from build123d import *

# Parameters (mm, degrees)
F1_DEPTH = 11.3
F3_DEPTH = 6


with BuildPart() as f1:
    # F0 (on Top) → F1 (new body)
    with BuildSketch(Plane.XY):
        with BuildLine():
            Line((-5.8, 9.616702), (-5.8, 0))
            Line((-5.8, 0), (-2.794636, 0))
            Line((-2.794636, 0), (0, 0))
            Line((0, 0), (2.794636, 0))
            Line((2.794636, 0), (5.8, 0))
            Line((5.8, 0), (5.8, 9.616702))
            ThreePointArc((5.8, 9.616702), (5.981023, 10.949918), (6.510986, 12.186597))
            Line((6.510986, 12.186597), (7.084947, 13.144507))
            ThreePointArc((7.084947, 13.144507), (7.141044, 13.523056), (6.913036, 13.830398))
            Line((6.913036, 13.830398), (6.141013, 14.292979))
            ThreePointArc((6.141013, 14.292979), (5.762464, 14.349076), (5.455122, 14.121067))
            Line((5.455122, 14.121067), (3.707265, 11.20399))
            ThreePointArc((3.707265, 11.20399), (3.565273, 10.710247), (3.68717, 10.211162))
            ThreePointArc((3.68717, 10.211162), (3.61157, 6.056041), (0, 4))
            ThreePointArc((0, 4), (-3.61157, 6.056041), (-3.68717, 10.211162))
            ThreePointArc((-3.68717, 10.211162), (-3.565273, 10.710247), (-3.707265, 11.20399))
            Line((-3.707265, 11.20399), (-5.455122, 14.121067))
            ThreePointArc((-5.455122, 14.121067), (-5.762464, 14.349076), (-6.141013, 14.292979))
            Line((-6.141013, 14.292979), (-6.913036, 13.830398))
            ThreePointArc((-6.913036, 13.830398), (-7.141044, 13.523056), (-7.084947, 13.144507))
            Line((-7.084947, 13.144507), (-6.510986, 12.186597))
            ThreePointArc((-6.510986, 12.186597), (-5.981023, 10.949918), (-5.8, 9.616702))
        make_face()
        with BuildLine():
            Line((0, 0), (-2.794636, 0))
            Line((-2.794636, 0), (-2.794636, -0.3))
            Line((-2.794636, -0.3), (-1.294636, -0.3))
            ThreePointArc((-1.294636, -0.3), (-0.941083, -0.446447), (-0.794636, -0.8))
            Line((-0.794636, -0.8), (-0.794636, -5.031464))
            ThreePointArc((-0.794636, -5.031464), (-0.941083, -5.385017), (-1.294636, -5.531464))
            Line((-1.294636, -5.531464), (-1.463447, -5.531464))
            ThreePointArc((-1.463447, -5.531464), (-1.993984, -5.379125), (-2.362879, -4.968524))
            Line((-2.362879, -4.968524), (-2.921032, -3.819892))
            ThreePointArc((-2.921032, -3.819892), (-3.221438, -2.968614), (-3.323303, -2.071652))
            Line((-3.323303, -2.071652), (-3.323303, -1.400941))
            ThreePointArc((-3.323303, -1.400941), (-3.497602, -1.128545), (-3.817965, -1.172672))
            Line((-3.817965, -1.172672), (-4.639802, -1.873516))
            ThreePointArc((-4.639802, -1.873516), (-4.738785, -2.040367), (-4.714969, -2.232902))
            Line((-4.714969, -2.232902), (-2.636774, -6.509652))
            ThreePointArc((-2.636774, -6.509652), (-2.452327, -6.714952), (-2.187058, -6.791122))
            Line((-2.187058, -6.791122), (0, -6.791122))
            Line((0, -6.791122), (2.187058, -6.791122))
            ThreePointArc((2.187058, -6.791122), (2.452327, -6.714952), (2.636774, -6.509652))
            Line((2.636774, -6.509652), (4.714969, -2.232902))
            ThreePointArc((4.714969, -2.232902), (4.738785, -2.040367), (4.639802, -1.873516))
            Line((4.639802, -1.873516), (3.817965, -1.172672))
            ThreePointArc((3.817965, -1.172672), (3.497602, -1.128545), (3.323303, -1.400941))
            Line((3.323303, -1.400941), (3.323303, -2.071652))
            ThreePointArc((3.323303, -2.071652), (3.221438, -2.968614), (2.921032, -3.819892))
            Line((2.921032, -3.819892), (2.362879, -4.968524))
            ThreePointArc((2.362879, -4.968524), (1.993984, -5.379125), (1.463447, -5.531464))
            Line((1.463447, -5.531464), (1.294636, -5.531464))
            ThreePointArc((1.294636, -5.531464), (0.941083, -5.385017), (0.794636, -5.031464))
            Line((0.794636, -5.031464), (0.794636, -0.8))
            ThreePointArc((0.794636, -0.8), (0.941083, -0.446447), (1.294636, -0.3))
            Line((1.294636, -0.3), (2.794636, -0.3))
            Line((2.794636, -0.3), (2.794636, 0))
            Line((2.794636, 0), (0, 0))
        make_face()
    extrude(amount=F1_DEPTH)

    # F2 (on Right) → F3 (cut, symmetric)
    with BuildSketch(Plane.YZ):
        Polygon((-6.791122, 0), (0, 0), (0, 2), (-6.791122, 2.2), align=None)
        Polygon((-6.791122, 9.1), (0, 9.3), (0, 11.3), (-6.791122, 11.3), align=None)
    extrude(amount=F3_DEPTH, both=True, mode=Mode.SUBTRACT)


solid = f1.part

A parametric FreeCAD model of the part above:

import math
import FreeCAD as App
import Part
import Sketcher

V = App.Vector
Q = App.Units.Quantity


def add_polygon(sketch, points):
    """Adds a closed chain of lines whose ends are joined by coincident constraints."""
    first, n = sketch.GeometryCount, len(points)
    for a, b in zip(points, points[1:] + points[:1]):
        sketch.addGeometry(Part.LineSegment(App.Vector(*a, 0), App.Vector(*b, 0)), False)
    for i in range(n):
        sketch.addConstraint(Sketcher.Constraint("Coincident", first + i, 2, first + (i + 1) % n, 1))

doc = App.newDocument("Part")
params = doc.addObject("Spreadsheet::Sheet", "Params")
for row, (alias, value) in enumerate([
    ("sketch1_radius", "0.500001 mm"),
    ("sketch1_radius2", "0.3 mm"),
    ("sketch1_radius3", "4.2 mm"),
    ("sketch1_width", "1.5 mm"),
    ("sketch1_height", "0.3 mm"),
    ("pad1_length", "11.3 mm"),
    ("sketch2_height", "2 mm"),
    ("sketch2_height2", "2.2 mm"),
    ("pocket1_length", "12 mm"),
], start=1):
    params.set(f"A{row}", alias)
    params.set(f"B{row}", "=" + value)
    params.setAlias(f"B{row}", alias)

body = doc.addObject("PartDesign::Body", "Body")

sketch1 = body.newObject("Sketcher::SketchObject", "Sketch")
sketch1.AttachmentSupport = (doc.getObject("XY_Plane"), [""])
sketch1.MapMode = "FlatFace"
sketch1.addGeometry(Part.LineSegment(V(-5.8, 9.62, 0), V(-5.8, 0, 0)), False)
sketch1.addGeometry(Part.LineSegment(V(-5.8, 0, 0), V(-2.79, 0, 0)), False)
sketch1.addGeometry(Part.LineSegment(V(-2.79, 0, 0), V(-2.79, -0.3, 0)), False)
sketch1.addGeometry(Part.LineSegment(V(-2.79, -0.3, 0), V(-1.29, -0.3, 0)), False)
sketch1.addGeometry(Part.ArcOfCircle(Part.Circle(V(-1.29, -0.8, 0), V(0, 0, 1), 0.5), math.radians(0), math.radians(90)), False)
sketch1.addGeometry(Part.LineSegment(V(-0.79, -0.8, 0), V(-0.79, -5.03, 0)), False)
sketch1.addGeometry(Part.ArcOfCircle(Part.Circle(V(-1.29, -5.03, 0), V(0, 0, 1), 0.5), math.radians(-90), math.radians(0)), False)
sketch1.addGeometry(Part.LineSegment(V(-1.29, -5.53, 0), V(-1.46, -5.53, 0)), False)
sketch1.addGeometry(Part.ArcOfCircle(Part.Circle(V(-1.46, -4.53, 0), V(0, 0, 1), 1), math.radians(-154), math.radians(-90)), False)
sketch1.addGeometry(Part.LineSegment(V(-2.36, -4.97, 0), V(-2.92, -3.82, 0)), False)
sketch1.addGeometry(Part.ArcOfCircle(Part.Circle(V(0.68, -2.07, 0), V(0, 0, 1), 4), math.radians(-180), math.radians(-154)), False)
sketch1.addGeometry(Part.LineSegment(V(-3.32, -2.07, 0), V(-3.32, -1.4, 0)), False)
sketch1.addGeometry(Part.ArcOfCircle(Part.Circle(V(-3.62, -1.4, 0), V(0, 0, 1), 0.3), math.radians(0), math.radians(130)), False)
sketch1.addGeometry(Part.LineSegment(V(-3.82, -1.17, 0), V(-4.64, -1.87, 0)), False)
sketch1.addGeometry(Part.ArcOfCircle(Part.Circle(V(-4.45, -2.1, 0), V(0, 0, 1), 0.3), math.radians(130), math.radians(206)), False)
sketch1.addGeometry(Part.LineSegment(V(-4.71, -2.23, 0), V(-2.64, -6.51, 0)), False)
sketch1.addGeometry(Part.ArcOfCircle(Part.Circle(V(-2.19, -6.29, 0), V(0, 0, 1), 0.5), math.radians(-154), math.radians(-90)), False)
sketch1.addGeometry(Part.LineSegment(V(-2.19, -6.79, 0), V(2.19, -6.79, 0)), False)
sketch1.addGeometry(Part.ArcOfCircle(Part.Circle(V(2.19, -6.29, 0), V(0, 0, 1), 0.5), math.radians(-90), math.radians(-26)), False)
sketch1.addGeometry(Part.LineSegment(V(2.64, -6.51, 0), V(4.71, -2.23, 0)), False)
sketch1.addGeometry(Part.ArcOfCircle(Part.Circle(V(4.45, -2.1, 0), V(0, 0, 1), 0.3), math.radians(-26), math.radians(50)), False)
sketch1.addGeometry(Part.LineSegment(V(4.64, -1.87, 0), V(3.82, -1.17, 0)), False)
sketch1.addGeometry(Part.ArcOfCircle(Part.Circle(V(3.62, -1.4, 0), V(0, 0, 1), 0.3), math.radians(50), math.radians(180)), False)
sketch1.addGeometry(Part.LineSegment(V(3.32, -1.4, 0), V(3.32, -2.07, 0)), False)
sketch1.addGeometry(Part.ArcOfCircle(Part.Circle(V(-0.68, -2.07, 0), V(0, 0, 1), 4), math.radians(-26), math.radians(0)), False)
sketch1.addGeometry(Part.LineSegment(V(2.92, -3.82, 0), V(2.36, -4.97, 0)), False)
sketch1.addGeometry(Part.ArcOfCircle(Part.Circle(V(1.46, -4.53, 0), V(0, 0, 1), 1), math.radians(-90), math.radians(-26)), False)
sketch1.addGeometry(Part.LineSegment(V(1.46, -5.53, 0), V(1.29, -5.53, 0)), False)
sketch1.addGeometry(Part.ArcOfCircle(Part.Circle(V(1.29, -5.03, 0), V(0, 0, 1), 0.5), math.radians(-180), math.radians(-90)), False)
sketch1.addGeometry(Part.LineSegment(V(0.79, -5.03, 0), V(0.79, -0.8, 0)), False)
sketch1.addGeometry(Part.ArcOfCircle(Part.Circle(V(1.29, -0.8, 0), V(0, 0, 1), 0.5), math.radians(90), math.radians(180)), False)
sketch1.addGeometry(Part.LineSegment(V(1.29, -0.3, 0), V(2.79, -0.3, 0)), False)
sketch1.addGeometry(Part.LineSegment(V(2.79, -0.3, 0), V(2.79, 0, 0)), False)
sketch1.addGeometry(Part.LineSegment(V(2.79, 0, 0), V(5.8, 0, 0)), False)
sketch1.addGeometry(Part.LineSegment(V(5.8, 0, 0), V(5.8, 9.62, 0)), False)
sketch1.addGeometry(Part.ArcOfCircle(Part.Circle(V(10.8, 9.62, 0), V(0, 0, 1), 5), math.radians(149), math.radians(180)), False)
sketch1.addGeometry(Part.LineSegment(V(6.51, 12.19, 0), V(7.08, 13.14, 0)), False)
sketch1.addGeometry(Part.ArcOfCircle(Part.Circle(V(6.66, 13.4, 0), V(0, 0, 1), 0.5), math.radians(-31), math.radians(59)), False)
sketch1.addGeometry(Part.LineSegment(V(6.91, 13.83, 0), V(6.14, 14.29, 0)), False)
sketch1.addGeometry(Part.ArcOfCircle(Part.Circle(V(5.88, 13.86, 0), V(0, 0, 1), 0.5), math.radians(59), math.radians(149)), False)
sketch1.addGeometry(Part.LineSegment(V(5.46, 14.12, 0), V(3.71, 11.2, 0)), False)
sketch1.addGeometry(Part.ArcOfCircle(Part.Circle(V(4.57, 10.69, 0), V(0, 0, 1), 1), math.radians(149), math.radians(209)), False)
sketch1.addGeometry(Part.ArcOfCircle(Part.Circle(V(0, 8.2, 0), V(0, 0, 1), 4.2), math.radians(-90), math.radians(29)), False)
sketch1.addGeometry(Part.ArcOfCircle(Part.Circle(V(0, 8.2, 0), V(0, 0, 1), 4.2), math.radians(151), math.radians(270)), False)
sketch1.addGeometry(Part.ArcOfCircle(Part.Circle(V(-4.57, 10.69, 0), V(0, 0, 1), 1), math.radians(-29), math.radians(31)), False)
sketch1.addGeometry(Part.LineSegment(V(-3.71, 11.2, 0), V(-5.46, 14.12, 0)), False)
sketch1.addGeometry(Part.ArcOfCircle(Part.Circle(V(-5.88, 13.86, 0), V(0, 0, 1), 0.5), math.radians(31), math.radians(121)), False)
sketch1.addGeometry(Part.LineSegment(V(-6.14, 14.29, 0), V(-6.91, 13.83, 0)), False)
sketch1.addGeometry(Part.ArcOfCircle(Part.Circle(V(-6.66, 13.4, 0), V(0, 0, 1), 0.5), math.radians(121), math.radians(211)), False)
sketch1.addGeometry(Part.LineSegment(V(-7.08, 13.14, 0), V(-6.51, 12.19, 0)), False)
sketch1.addGeometry(Part.ArcOfCircle(Part.Circle(V(-10.8, 9.62, 0), V(0, 0, 1), 5), math.radians(0), math.radians(31)), False)
sketch1.addConstraint(Sketcher.Constraint("Coincident", 0, 2, 1, 1))
sketch1.addConstraint(Sketcher.Constraint("Coincident", 1, 2, 2, 1))
sketch1.addConstraint(Sketcher.Constraint("Coincident", 2, 2, 3, 1))
sketch1.addConstraint(Sketcher.Constraint("Coincident", 3, 2, 4, 2))
sketch1.addConstraint(Sketcher.Constraint("Coincident", 4, 1, 5, 1))
sketch1.addConstraint(Sketcher.Constraint("Coincident", 5, 2, 6, 2))
sketch1.addConstraint(Sketcher.Constraint("Coincident", 6, 1, 7, 1))
sketch1.addConstraint(Sketcher.Constraint("Coincident", 7, 2, 8, 2))
sketch1.addConstraint(Sketcher.Constraint("Tangent", 8, 1, 9, 1))
sketch1.addConstraint(Sketcher.Constraint("Tangent", 9, 2, 10, 2))
sketch1.addConstraint(Sketcher.Constraint("Tangent", 10, 1, 11, 1))
sketch1.addConstraint(Sketcher.Constraint("Coincident", 11, 2, 12, 1))
sketch1.addConstraint(Sketcher.Constraint("Tangent", 12, 2, 13, 1))
sketch1.addConstraint(Sketcher.Constraint("Coincident", 13, 2, 14, 1))
sketch1.addConstraint(Sketcher.Constraint("Tangent", 14, 2, 15, 1))
sketch1.addConstraint(Sketcher.Constraint("Coincident", 15, 2, 16, 1))
sketch1.addConstraint(Sketcher.Constraint("Coincident", 16, 2, 17, 1))
sketch1.addConstraint(Sketcher.Constraint("Coincident", 17, 2, 18, 1))
sketch1.addConstraint(Sketcher.Constraint("Coincident", 18, 2, 19, 1))
sketch1.addConstraint(Sketcher.Constraint("Tangent", 19, 2, 20, 1))
sketch1.addConstraint(Sketcher.Constraint("Coincident", 20, 2, 21, 1))
sketch1.addConstraint(Sketcher.Constraint("Tangent", 21, 2, 22, 1))
sketch1.addConstraint(Sketcher.Constraint("Coincident", 22, 2, 23, 1))
sketch1.addConstraint(Sketcher.Constraint("Tangent", 23, 2, 24, 2))
sketch1.addConstraint(Sketcher.Constraint("Tangent", 24, 1, 25, 1))
sketch1.addConstraint(Sketcher.Constraint("Tangent", 25, 2, 26, 2))
sketch1.addConstraint(Sketcher.Constraint("Coincident", 26, 1, 27, 1))
sketch1.addConstraint(Sketcher.Constraint("Coincident", 27, 2, 28, 2))
sketch1.addConstraint(Sketcher.Constraint("Coincident", 28, 1, 29, 1))
sketch1.addConstraint(Sketcher.Constraint("Coincident", 29, 2, 30, 2))
sketch1.addConstraint(Sketcher.Constraint("Coincident", 30, 1, 31, 1))
sketch1.addConstraint(Sketcher.Constraint("Coincident", 31, 2, 32, 1))
sketch1.addConstraint(Sketcher.Constraint("Coincident", 32, 2, 33, 1))
sketch1.addConstraint(Sketcher.Constraint("Coincident", 33, 2, 34, 1))
sketch1.addConstraint(Sketcher.Constraint("Tangent", 34, 2, 35, 2))
sketch1.addConstraint(Sketcher.Constraint("Tangent", 35, 1, 36, 1))
sketch1.addConstraint(Sketcher.Constraint("Tangent", 36, 2, 37, 1))
sketch1.addConstraint(Sketcher.Constraint("Coincident", 37, 2, 38, 1))
sketch1.addConstraint(Sketcher.Constraint("Tangent", 38, 2, 39, 1))
sketch1.addConstraint(Sketcher.Constraint("Tangent", 39, 2, 40, 1))
sketch1.addConstraint(Sketcher.Constraint("Coincident", 40, 2, 41, 1))
sketch1.addConstraint(Sketcher.Constraint("Coincident", 41, 2, 42, 2))
sketch1.addConstraint(Sketcher.Constraint("Tangent", 42, 1, 43, 2))
sketch1.addConstraint(Sketcher.Constraint("Coincident", 43, 1, 44, 1))
sketch1.addConstraint(Sketcher.Constraint("Coincident", 44, 2, 45, 1))
sketch1.addConstraint(Sketcher.Constraint("Tangent", 45, 2, 46, 1))
sketch1.addConstraint(Sketcher.Constraint("Tangent", 46, 2, 47, 1))
sketch1.addConstraint(Sketcher.Constraint("Coincident", 47, 2, 48, 1))
sketch1.addConstraint(Sketcher.Constraint("Tangent", 48, 2, 49, 1))
sketch1.addConstraint(Sketcher.Constraint("Tangent", 49, 2, 50, 2))
sketch1.addConstraint(Sketcher.Constraint("Tangent", 50, 1, 0, 1))
sketch1.addConstraint(Sketcher.Constraint("Vertical", 0))
sketch1.addConstraint(Sketcher.Constraint("Horizontal", 1))
sketch1.addConstraint(Sketcher.Constraint("Vertical", 2))
sketch1.addConstraint(Sketcher.Constraint("Horizontal", 3))
sketch1.addConstraint(Sketcher.Constraint("Vertical", 5))
sketch1.addConstraint(Sketcher.Constraint("Horizontal", 7))
sketch1.addConstraint(Sketcher.Constraint("Vertical", 11))
sketch1.addConstraint(Sketcher.Constraint("Horizontal", 17))
sketch1.addConstraint(Sketcher.Constraint("Vertical", 23))
sketch1.addConstraint(Sketcher.Constraint("Horizontal", 27))
sketch1.addConstraint(Sketcher.Constraint("Vertical", 29))
sketch1.addConstraint(Sketcher.Constraint("Horizontal", 31))
sketch1.addConstraint(Sketcher.Constraint("Vertical", 32))
sketch1.addConstraint(Sketcher.Constraint("Horizontal", 33))
sketch1.addConstraint(Sketcher.Constraint("Vertical", 34))
sketch1.addConstraint(Sketcher.Constraint("Equal", 4, 6))
sketch1.addConstraint(Sketcher.Constraint("Equal", 12, 14))
sketch1.addConstraint(Sketcher.Constraint("Equal", 6, 16))
sketch1.addConstraint(Sketcher.Constraint("Equal", 16, 18))
sketch1.addConstraint(Sketcher.Constraint("Equal", 14, 20))
sketch1.addConstraint(Sketcher.Constraint("Equal", 20, 22))
sketch1.addConstraint(Sketcher.Constraint("Equal", 10, 24))
sketch1.addConstraint(Sketcher.Constraint("Equal", 8, 26))
sketch1.addConstraint(Sketcher.Constraint("Equal", 18, 28))
sketch1.addConstraint(Sketcher.Constraint("Equal", 28, 30))
sketch1.addConstraint(Sketcher.Constraint("Equal", 30, 37))
sketch1.addConstraint(Sketcher.Constraint("Equal", 37, 39))
sketch1.addConstraint(Sketcher.Constraint("Equal", 42, 43))
sketch1.addConstraint(Sketcher.Constraint("Equal", 41, 44))
sketch1.addConstraint(Sketcher.Constraint("Equal", 39, 46))
sketch1.addConstraint(Sketcher.Constraint("Equal", 46, 48))
sketch1.addConstraint(Sketcher.Constraint("Equal", 35, 50))
sketch1.addConstraint(Sketcher.Constraint("Symmetric", 1, 2, 32, 2, -1, 1))
sketch1.addConstraint(Sketcher.Constraint("Symmetric", 14, 3, 20, 3, -2))
sketch1.addConstraint(Sketcher.Constraint("Symmetric", 12, 3, 22, 3, -2))
sketch1.addConstraint(Sketcher.Constraint("Symmetric", 8, 3, 26, 3, -2))
sketch1.addConstraint(Sketcher.Constraint("Symmetric", 4, 3, 30, 3, -2))
sketch1.addConstraint(Sketcher.Constraint("Symmetric", 41, 3, 44, 3, -2))
sketch1.addConstraint(Sketcher.Constraint("Symmetric", 39, 3, 46, 3, -2))
sketch1.addConstraint(Sketcher.Constraint("Symmetric", 37, 3, 48, 3, -2))
sketch1.addConstraint(Sketcher.Constraint("Symmetric", 35, 3, 50, 3, -2))
sketch1.addConstraint(Sketcher.Constraint("Symmetric", 15, 2, 18, 2, -2))
sketch1.addConstraint(Sketcher.Constraint("PointOnObject", 0, 2, -1))
sketch1.addConstraint(Sketcher.Constraint("PointOnObject", 42, 1, -2))
sketch1.addConstraint(Sketcher.Constraint("Parallel", 9, 15))
sketch1.addConstraint(Sketcher.Constraint("Parallel", 19, 25))
sketch1.addConstraint(Sketcher.Constraint("Perpendicular", 36, 38))
sketch1.addConstraint(Sketcher.Constraint("Perpendicular", 38, 40))
sketch1.addConstraint(Sketcher.Constraint("Horizontal", 30, 3, 4, 1))
sketch1.addConstraint(Sketcher.Constraint("Horizontal", 28, 3, 5, 2))
sketch1.addConstraint(Sketcher.Constraint("Horizontal", 22, 3, 11, 2))
sketch1.addConstraint(Sketcher.Constraint("Horizontal", 13, 2, 20, 2))
sketch1.addConstraint(Sketcher.Constraint("Horizontal", 11, 2, 22, 2))
sketch1.addConstraint(Sketcher.Constraint("Horizontal", 5, 2, 28, 1))
sketch1.addConstraint(Sketcher.Constraint("Horizontal", 4, 1, 29, 2))
sketch1.addConstraint(Sketcher.Constraint("Horizontal", 41, 2, 43, 1))
sketch1.addConstraint(Sketcher.Constraint("Horizontal", 40, 2, 44, 2))
sketch1.addConstraint(Sketcher.Constraint("Horizontal", 37, 2, 47, 2))
sketch1.addConstraint(Sketcher.Constraint("Vertical", 6, 3, 3, 2))
sketch1.addConstraint(Sketcher.Constraint("Vertical", 3, 2, 6, 1))
sketch1.addConstraint(Sketcher.Constraint("Vertical", 18, 3, 17, 2))
sketch1.addConstraint(Sketcher.Constraint("Vertical", 30, 3, 27, 2))
sketch1.addConstraint(Sketcher.Constraint("Vertical", 27, 2, 30, 1))
sketch1.addConstraint(Sketcher.Constraint("Equal", 7, 27))
sketch1.addConstraint(Sketcher.Constraint("Radius", 4, Q("0.500001 mm")))
sketch1.addConstraint(Sketcher.Constraint("Radius", 12, Q("0.3 mm")))
sketch1.addConstraint(Sketcher.Constraint("Radius", 42, Q("4.2 mm")))
sketch1.addConstraint(Sketcher.Constraint("DistanceX", 3, 1, 3, 2, Q("1.5 mm")))
sketch1.addConstraint(Sketcher.Constraint("DistanceY", 2, 2, 2, 1, Q("0.3 mm")))
sketch1.addConstraint(Sketcher.Constraint("DistanceY", -1, 1, 42, 1, Q("4 mm")))
sketch1.addConstraint(Sketcher.Constraint("Distance", 38, Q("0.9 mm")))
sketch1.addConstraint(Sketcher.Constraint("DistanceX", 0, 2, -1, 1, Q("5.8 mm")))
sketch1.addConstraint(Sketcher.Constraint("Radius", 35, Q("4.999991 mm")))
sketch1.addConstraint(Sketcher.Constraint("Radius", 8, Q("1.000003 mm")))
sketch1.addConstraint(Sketcher.Constraint("Radius", 10, Q("4.000006 mm")))
sketch1.addConstraint(Sketcher.Constraint("Radius", 41, Q("1.000005 mm")))
sketch1.addConstraint(Sketcher.Constraint("Distance", 36, Q("1.116702 mm")))
sketch1.addConstraint(Sketcher.Constraint("DistanceX", 7, 2, 7, 1, Q("0.168811 mm")))
sketch1.addConstraint(Sketcher.Constraint("DistanceY", 11, 1, 11, 2, Q("0.670711 mm")))
sketch1.addConstraint(Sketcher.Constraint("DistanceY", 14, 2, -1, 1, Q("2.232902 mm")))
sketch1.addConstraint(Sketcher.Constraint("DistanceX", -1, 1, 20, 2, Q("4.639802 mm")))
sketch1.addConstraint(Sketcher.Constraint("DistanceY", -1, 1, 37, 2, Q("13.830398 mm")))
sketch1.addConstraint(Sketcher.Constraint("Distance", 13, Q("1.080092 mm")))
sketch1.addConstraint(Sketcher.Constraint("Distance", 40, Q("3.400639 mm")))
sketch1.addConstraint(Sketcher.Constraint("DistanceX", 1, 1, 1, 2, Q("3.005364 mm")))
sketch1.addConstraint(Sketcher.Constraint("DistanceX", 17, 1, 17, 2, Q("4.374116 mm")))
sketch1.addConstraint(Sketcher.Constraint("DistanceY", 0, 2, 0, 1, Q("9.616702 mm")))
sketch1.addConstraint(Sketcher.Constraint("DistanceY", 5, 2, 5, 1, Q("4.231464 mm")))
sketch1.addConstraint(Sketcher.Constraint("DistanceY", 10, 3, -1, 1, Q("2.07165 mm")))
sketch1.addConstraint(Sketcher.Constraint("DistanceX", 14, 3, -1, 1, Q("4.445139 mm")))
sketch1.addConstraint(Sketcher.Constraint("DistanceY", 16, 3, -1, 1, Q("6.29112 mm")))
sketch1.addConstraint(Sketcher.Constraint("DistanceY", -1, 1, 39, 3, Q("13.864078 mm")))
sketch1.addConstraint(Sketcher.Constraint("DistanceX", 8, 1, -1, 1, Q("2.362879 mm")))
sketch1.addConstraint(Sketcher.Constraint("DistanceY", 18, 2, -1, 1, Q("6.509652 mm")))
sketch1.addConstraint(Sketcher.Constraint("DistanceX", -1, 1, 41, 2, Q("3.68717 mm")))
sketch1.setExpression("Constraints[115]", "Params.sketch1_radius")
sketch1.setExpression("Constraints[116]", "Params.sketch1_radius2")
sketch1.setExpression("Constraints[117]", "Params.sketch1_radius3")
sketch1.setExpression("Constraints[118]", "Params.sketch1_width")
sketch1.setExpression("Constraints[119]", "Params.sketch1_height")
pad1 = body.newObject("PartDesign::Pad", "Pad")
pad1.Profile = sketch1
pad1.setExpression("Length", "Params.pad1_length")

sketch2 = body.newObject("Sketcher::SketchObject", "Sketch001")
sketch2.AttachmentSupport = (doc.getObject("YZ_Plane"), [""])
sketch2.MapMode = "FlatFace"
add_polygon(sketch2, [(-6.8, 0), (0, 0), (0, 2), (-6.8, 2.2)])
add_polygon(sketch2, [(-6.8, 9.1), (0, 9.3), (0, 11.3), (-6.8, 11.3)])
sketch2.addConstraint(Sketcher.Constraint("Horizontal", 0))
sketch2.addConstraint(Sketcher.Constraint("Vertical", 1))
sketch2.addConstraint(Sketcher.Constraint("Vertical", 3))
sketch2.addConstraint(Sketcher.Constraint("Vertical", 5))
sketch2.addConstraint(Sketcher.Constraint("Horizontal", 6))
sketch2.addConstraint(Sketcher.Constraint("Vertical", 7))
sketch2.addConstraint(Sketcher.Constraint("Coincident", 0, 2, -1, 1))
sketch2.addConstraint(Sketcher.Constraint("PointOnObject", 4, 2, -2))
sketch2.addConstraint(Sketcher.Constraint("Vertical", 3, 2, 6, 2))
sketch2.addConstraint(Sketcher.Constraint("Equal", 1, 5))
sketch2.addConstraint(Sketcher.Constraint("Equal", 3, 7))
sketch2.addConstraint(Sketcher.Constraint("DistanceY", 1, 1, 1, 2, Q("2 mm")))
sketch2.addConstraint(Sketcher.Constraint("DistanceY", 3, 2, 3, 1, Q("2.2 mm")))
sketch2.addConstraint(Sketcher.Constraint("DistanceY", -1, 1, 4, 2, Q("9.3 mm")))
sketch2.addConstraint(Sketcher.Constraint("DistanceX", 0, 1, 0, 2, Q("6.791122 mm")))
sketch2.setExpression("Constraints[19]", "Params.sketch2_height")
sketch2.setExpression("Constraints[20]", "Params.sketch2_height2")
pocket1 = body.newObject("PartDesign::Pocket", "Pocket")
pocket1.Profile = sketch2
pocket1.setExpression("Length", "Params.pocket1_length")
pocket1.Midplane = True

doc.recompute()
